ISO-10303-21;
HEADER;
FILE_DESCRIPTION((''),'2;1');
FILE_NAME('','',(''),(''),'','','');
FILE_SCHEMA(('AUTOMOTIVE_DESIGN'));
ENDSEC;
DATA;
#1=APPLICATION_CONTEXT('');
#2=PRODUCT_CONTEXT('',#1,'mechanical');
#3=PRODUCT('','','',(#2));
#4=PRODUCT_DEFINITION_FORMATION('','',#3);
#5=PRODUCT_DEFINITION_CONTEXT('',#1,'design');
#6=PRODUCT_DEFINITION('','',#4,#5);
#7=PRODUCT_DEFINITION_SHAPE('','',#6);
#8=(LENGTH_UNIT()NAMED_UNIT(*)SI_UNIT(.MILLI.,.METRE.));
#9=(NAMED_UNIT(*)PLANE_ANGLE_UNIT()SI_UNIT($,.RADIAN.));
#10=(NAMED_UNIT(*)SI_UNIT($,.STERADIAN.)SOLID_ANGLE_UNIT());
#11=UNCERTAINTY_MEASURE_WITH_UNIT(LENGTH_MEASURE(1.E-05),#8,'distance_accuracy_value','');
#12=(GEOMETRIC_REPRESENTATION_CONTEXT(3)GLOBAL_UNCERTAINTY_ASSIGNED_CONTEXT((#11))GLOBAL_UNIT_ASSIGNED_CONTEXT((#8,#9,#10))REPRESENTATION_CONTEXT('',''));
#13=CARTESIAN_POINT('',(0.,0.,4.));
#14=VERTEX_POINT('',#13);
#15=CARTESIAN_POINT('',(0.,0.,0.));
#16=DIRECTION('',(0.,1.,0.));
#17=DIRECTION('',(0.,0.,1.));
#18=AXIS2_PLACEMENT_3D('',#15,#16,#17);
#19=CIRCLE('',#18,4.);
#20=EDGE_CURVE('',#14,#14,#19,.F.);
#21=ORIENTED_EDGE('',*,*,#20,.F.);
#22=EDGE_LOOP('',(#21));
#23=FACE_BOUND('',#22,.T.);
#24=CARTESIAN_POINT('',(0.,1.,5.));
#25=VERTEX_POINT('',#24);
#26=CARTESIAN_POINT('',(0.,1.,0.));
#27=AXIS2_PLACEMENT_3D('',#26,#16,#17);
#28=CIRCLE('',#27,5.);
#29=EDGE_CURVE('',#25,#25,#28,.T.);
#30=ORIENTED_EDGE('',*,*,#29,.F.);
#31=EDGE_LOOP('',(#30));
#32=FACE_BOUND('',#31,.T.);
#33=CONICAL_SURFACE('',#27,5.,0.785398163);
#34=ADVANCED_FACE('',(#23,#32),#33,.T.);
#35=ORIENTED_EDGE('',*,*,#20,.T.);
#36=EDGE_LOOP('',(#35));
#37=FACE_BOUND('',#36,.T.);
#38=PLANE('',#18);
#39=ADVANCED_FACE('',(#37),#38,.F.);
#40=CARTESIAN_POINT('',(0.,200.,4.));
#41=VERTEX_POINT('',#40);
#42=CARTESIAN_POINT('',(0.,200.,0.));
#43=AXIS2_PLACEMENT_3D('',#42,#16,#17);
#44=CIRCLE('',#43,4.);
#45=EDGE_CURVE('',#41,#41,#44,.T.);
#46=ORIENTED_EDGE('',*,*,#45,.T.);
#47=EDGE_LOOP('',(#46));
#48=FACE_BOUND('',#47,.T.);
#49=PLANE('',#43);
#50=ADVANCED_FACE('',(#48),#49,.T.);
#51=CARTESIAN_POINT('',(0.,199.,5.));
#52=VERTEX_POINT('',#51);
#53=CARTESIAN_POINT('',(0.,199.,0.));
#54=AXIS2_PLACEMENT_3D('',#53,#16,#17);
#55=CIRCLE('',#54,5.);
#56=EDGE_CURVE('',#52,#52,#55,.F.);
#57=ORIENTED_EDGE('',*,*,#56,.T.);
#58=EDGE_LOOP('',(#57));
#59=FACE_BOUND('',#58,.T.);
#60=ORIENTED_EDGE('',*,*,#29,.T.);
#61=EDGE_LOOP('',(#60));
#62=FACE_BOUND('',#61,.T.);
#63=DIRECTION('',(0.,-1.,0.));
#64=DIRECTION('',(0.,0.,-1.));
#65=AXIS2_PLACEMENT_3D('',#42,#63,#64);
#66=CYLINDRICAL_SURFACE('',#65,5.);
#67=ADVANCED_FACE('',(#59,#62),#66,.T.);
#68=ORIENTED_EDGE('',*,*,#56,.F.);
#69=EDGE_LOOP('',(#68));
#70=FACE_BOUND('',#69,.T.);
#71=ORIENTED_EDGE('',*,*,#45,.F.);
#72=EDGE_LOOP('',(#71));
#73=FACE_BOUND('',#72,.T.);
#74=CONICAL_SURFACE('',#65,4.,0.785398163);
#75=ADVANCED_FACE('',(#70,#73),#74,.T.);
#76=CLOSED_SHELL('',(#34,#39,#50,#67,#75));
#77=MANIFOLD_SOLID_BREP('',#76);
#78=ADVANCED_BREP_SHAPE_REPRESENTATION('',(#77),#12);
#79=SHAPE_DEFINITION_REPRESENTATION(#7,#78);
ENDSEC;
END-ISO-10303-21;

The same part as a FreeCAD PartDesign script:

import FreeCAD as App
import Part
import Sketcher
from FreeCAD import Vector
Q = App.Units.Quantity


def edges_at(feature, points):
    """Names of the edges that pass closest to the given points."""
    edges = feature.Shape.Edges
    near = lambda p: min(range(len(edges)), key=lambda i: edges[i].distToShape(Part.Vertex(*p))[0])
    return sorted({f"Edge{near(p) + 1}" for p in points})

doc = App.newDocument("Part")
body = doc.addObject("PartDesign::Body", "Body")

sketch1 = body.newObject("Sketcher::SketchObject", "Sketch")
sketch1.AttachmentSupport = (doc.getObject("XZ_Plane"), [""])
sketch1.MapMode = "FlatFace"
sketch1.addGeometry(Part.Circle(Vector(0, 0, 0), Vector(0, 0, 1), 5), False)
sketch1.addConstraint([
    Sketcher.Constraint("Coincident", 0, 3, -1, 1),
    Sketcher.Constraint("Diameter", 0, Q("10 mm")),
])
pad1 = body.newObject("PartDesign::Pad", "Pad")
pad1.Profile = sketch1
pad1.Length = 200
pad1.Reversed = True
doc.recompute()

chamfer = body.newObject("PartDesign::Chamfer", "Chamfer")
chamfer.Base = (pad1, edges_at(pad1, [(-5, 0, 0), (-5, 200, 0)]))
chamfer.Size = 1

doc.recompute()
